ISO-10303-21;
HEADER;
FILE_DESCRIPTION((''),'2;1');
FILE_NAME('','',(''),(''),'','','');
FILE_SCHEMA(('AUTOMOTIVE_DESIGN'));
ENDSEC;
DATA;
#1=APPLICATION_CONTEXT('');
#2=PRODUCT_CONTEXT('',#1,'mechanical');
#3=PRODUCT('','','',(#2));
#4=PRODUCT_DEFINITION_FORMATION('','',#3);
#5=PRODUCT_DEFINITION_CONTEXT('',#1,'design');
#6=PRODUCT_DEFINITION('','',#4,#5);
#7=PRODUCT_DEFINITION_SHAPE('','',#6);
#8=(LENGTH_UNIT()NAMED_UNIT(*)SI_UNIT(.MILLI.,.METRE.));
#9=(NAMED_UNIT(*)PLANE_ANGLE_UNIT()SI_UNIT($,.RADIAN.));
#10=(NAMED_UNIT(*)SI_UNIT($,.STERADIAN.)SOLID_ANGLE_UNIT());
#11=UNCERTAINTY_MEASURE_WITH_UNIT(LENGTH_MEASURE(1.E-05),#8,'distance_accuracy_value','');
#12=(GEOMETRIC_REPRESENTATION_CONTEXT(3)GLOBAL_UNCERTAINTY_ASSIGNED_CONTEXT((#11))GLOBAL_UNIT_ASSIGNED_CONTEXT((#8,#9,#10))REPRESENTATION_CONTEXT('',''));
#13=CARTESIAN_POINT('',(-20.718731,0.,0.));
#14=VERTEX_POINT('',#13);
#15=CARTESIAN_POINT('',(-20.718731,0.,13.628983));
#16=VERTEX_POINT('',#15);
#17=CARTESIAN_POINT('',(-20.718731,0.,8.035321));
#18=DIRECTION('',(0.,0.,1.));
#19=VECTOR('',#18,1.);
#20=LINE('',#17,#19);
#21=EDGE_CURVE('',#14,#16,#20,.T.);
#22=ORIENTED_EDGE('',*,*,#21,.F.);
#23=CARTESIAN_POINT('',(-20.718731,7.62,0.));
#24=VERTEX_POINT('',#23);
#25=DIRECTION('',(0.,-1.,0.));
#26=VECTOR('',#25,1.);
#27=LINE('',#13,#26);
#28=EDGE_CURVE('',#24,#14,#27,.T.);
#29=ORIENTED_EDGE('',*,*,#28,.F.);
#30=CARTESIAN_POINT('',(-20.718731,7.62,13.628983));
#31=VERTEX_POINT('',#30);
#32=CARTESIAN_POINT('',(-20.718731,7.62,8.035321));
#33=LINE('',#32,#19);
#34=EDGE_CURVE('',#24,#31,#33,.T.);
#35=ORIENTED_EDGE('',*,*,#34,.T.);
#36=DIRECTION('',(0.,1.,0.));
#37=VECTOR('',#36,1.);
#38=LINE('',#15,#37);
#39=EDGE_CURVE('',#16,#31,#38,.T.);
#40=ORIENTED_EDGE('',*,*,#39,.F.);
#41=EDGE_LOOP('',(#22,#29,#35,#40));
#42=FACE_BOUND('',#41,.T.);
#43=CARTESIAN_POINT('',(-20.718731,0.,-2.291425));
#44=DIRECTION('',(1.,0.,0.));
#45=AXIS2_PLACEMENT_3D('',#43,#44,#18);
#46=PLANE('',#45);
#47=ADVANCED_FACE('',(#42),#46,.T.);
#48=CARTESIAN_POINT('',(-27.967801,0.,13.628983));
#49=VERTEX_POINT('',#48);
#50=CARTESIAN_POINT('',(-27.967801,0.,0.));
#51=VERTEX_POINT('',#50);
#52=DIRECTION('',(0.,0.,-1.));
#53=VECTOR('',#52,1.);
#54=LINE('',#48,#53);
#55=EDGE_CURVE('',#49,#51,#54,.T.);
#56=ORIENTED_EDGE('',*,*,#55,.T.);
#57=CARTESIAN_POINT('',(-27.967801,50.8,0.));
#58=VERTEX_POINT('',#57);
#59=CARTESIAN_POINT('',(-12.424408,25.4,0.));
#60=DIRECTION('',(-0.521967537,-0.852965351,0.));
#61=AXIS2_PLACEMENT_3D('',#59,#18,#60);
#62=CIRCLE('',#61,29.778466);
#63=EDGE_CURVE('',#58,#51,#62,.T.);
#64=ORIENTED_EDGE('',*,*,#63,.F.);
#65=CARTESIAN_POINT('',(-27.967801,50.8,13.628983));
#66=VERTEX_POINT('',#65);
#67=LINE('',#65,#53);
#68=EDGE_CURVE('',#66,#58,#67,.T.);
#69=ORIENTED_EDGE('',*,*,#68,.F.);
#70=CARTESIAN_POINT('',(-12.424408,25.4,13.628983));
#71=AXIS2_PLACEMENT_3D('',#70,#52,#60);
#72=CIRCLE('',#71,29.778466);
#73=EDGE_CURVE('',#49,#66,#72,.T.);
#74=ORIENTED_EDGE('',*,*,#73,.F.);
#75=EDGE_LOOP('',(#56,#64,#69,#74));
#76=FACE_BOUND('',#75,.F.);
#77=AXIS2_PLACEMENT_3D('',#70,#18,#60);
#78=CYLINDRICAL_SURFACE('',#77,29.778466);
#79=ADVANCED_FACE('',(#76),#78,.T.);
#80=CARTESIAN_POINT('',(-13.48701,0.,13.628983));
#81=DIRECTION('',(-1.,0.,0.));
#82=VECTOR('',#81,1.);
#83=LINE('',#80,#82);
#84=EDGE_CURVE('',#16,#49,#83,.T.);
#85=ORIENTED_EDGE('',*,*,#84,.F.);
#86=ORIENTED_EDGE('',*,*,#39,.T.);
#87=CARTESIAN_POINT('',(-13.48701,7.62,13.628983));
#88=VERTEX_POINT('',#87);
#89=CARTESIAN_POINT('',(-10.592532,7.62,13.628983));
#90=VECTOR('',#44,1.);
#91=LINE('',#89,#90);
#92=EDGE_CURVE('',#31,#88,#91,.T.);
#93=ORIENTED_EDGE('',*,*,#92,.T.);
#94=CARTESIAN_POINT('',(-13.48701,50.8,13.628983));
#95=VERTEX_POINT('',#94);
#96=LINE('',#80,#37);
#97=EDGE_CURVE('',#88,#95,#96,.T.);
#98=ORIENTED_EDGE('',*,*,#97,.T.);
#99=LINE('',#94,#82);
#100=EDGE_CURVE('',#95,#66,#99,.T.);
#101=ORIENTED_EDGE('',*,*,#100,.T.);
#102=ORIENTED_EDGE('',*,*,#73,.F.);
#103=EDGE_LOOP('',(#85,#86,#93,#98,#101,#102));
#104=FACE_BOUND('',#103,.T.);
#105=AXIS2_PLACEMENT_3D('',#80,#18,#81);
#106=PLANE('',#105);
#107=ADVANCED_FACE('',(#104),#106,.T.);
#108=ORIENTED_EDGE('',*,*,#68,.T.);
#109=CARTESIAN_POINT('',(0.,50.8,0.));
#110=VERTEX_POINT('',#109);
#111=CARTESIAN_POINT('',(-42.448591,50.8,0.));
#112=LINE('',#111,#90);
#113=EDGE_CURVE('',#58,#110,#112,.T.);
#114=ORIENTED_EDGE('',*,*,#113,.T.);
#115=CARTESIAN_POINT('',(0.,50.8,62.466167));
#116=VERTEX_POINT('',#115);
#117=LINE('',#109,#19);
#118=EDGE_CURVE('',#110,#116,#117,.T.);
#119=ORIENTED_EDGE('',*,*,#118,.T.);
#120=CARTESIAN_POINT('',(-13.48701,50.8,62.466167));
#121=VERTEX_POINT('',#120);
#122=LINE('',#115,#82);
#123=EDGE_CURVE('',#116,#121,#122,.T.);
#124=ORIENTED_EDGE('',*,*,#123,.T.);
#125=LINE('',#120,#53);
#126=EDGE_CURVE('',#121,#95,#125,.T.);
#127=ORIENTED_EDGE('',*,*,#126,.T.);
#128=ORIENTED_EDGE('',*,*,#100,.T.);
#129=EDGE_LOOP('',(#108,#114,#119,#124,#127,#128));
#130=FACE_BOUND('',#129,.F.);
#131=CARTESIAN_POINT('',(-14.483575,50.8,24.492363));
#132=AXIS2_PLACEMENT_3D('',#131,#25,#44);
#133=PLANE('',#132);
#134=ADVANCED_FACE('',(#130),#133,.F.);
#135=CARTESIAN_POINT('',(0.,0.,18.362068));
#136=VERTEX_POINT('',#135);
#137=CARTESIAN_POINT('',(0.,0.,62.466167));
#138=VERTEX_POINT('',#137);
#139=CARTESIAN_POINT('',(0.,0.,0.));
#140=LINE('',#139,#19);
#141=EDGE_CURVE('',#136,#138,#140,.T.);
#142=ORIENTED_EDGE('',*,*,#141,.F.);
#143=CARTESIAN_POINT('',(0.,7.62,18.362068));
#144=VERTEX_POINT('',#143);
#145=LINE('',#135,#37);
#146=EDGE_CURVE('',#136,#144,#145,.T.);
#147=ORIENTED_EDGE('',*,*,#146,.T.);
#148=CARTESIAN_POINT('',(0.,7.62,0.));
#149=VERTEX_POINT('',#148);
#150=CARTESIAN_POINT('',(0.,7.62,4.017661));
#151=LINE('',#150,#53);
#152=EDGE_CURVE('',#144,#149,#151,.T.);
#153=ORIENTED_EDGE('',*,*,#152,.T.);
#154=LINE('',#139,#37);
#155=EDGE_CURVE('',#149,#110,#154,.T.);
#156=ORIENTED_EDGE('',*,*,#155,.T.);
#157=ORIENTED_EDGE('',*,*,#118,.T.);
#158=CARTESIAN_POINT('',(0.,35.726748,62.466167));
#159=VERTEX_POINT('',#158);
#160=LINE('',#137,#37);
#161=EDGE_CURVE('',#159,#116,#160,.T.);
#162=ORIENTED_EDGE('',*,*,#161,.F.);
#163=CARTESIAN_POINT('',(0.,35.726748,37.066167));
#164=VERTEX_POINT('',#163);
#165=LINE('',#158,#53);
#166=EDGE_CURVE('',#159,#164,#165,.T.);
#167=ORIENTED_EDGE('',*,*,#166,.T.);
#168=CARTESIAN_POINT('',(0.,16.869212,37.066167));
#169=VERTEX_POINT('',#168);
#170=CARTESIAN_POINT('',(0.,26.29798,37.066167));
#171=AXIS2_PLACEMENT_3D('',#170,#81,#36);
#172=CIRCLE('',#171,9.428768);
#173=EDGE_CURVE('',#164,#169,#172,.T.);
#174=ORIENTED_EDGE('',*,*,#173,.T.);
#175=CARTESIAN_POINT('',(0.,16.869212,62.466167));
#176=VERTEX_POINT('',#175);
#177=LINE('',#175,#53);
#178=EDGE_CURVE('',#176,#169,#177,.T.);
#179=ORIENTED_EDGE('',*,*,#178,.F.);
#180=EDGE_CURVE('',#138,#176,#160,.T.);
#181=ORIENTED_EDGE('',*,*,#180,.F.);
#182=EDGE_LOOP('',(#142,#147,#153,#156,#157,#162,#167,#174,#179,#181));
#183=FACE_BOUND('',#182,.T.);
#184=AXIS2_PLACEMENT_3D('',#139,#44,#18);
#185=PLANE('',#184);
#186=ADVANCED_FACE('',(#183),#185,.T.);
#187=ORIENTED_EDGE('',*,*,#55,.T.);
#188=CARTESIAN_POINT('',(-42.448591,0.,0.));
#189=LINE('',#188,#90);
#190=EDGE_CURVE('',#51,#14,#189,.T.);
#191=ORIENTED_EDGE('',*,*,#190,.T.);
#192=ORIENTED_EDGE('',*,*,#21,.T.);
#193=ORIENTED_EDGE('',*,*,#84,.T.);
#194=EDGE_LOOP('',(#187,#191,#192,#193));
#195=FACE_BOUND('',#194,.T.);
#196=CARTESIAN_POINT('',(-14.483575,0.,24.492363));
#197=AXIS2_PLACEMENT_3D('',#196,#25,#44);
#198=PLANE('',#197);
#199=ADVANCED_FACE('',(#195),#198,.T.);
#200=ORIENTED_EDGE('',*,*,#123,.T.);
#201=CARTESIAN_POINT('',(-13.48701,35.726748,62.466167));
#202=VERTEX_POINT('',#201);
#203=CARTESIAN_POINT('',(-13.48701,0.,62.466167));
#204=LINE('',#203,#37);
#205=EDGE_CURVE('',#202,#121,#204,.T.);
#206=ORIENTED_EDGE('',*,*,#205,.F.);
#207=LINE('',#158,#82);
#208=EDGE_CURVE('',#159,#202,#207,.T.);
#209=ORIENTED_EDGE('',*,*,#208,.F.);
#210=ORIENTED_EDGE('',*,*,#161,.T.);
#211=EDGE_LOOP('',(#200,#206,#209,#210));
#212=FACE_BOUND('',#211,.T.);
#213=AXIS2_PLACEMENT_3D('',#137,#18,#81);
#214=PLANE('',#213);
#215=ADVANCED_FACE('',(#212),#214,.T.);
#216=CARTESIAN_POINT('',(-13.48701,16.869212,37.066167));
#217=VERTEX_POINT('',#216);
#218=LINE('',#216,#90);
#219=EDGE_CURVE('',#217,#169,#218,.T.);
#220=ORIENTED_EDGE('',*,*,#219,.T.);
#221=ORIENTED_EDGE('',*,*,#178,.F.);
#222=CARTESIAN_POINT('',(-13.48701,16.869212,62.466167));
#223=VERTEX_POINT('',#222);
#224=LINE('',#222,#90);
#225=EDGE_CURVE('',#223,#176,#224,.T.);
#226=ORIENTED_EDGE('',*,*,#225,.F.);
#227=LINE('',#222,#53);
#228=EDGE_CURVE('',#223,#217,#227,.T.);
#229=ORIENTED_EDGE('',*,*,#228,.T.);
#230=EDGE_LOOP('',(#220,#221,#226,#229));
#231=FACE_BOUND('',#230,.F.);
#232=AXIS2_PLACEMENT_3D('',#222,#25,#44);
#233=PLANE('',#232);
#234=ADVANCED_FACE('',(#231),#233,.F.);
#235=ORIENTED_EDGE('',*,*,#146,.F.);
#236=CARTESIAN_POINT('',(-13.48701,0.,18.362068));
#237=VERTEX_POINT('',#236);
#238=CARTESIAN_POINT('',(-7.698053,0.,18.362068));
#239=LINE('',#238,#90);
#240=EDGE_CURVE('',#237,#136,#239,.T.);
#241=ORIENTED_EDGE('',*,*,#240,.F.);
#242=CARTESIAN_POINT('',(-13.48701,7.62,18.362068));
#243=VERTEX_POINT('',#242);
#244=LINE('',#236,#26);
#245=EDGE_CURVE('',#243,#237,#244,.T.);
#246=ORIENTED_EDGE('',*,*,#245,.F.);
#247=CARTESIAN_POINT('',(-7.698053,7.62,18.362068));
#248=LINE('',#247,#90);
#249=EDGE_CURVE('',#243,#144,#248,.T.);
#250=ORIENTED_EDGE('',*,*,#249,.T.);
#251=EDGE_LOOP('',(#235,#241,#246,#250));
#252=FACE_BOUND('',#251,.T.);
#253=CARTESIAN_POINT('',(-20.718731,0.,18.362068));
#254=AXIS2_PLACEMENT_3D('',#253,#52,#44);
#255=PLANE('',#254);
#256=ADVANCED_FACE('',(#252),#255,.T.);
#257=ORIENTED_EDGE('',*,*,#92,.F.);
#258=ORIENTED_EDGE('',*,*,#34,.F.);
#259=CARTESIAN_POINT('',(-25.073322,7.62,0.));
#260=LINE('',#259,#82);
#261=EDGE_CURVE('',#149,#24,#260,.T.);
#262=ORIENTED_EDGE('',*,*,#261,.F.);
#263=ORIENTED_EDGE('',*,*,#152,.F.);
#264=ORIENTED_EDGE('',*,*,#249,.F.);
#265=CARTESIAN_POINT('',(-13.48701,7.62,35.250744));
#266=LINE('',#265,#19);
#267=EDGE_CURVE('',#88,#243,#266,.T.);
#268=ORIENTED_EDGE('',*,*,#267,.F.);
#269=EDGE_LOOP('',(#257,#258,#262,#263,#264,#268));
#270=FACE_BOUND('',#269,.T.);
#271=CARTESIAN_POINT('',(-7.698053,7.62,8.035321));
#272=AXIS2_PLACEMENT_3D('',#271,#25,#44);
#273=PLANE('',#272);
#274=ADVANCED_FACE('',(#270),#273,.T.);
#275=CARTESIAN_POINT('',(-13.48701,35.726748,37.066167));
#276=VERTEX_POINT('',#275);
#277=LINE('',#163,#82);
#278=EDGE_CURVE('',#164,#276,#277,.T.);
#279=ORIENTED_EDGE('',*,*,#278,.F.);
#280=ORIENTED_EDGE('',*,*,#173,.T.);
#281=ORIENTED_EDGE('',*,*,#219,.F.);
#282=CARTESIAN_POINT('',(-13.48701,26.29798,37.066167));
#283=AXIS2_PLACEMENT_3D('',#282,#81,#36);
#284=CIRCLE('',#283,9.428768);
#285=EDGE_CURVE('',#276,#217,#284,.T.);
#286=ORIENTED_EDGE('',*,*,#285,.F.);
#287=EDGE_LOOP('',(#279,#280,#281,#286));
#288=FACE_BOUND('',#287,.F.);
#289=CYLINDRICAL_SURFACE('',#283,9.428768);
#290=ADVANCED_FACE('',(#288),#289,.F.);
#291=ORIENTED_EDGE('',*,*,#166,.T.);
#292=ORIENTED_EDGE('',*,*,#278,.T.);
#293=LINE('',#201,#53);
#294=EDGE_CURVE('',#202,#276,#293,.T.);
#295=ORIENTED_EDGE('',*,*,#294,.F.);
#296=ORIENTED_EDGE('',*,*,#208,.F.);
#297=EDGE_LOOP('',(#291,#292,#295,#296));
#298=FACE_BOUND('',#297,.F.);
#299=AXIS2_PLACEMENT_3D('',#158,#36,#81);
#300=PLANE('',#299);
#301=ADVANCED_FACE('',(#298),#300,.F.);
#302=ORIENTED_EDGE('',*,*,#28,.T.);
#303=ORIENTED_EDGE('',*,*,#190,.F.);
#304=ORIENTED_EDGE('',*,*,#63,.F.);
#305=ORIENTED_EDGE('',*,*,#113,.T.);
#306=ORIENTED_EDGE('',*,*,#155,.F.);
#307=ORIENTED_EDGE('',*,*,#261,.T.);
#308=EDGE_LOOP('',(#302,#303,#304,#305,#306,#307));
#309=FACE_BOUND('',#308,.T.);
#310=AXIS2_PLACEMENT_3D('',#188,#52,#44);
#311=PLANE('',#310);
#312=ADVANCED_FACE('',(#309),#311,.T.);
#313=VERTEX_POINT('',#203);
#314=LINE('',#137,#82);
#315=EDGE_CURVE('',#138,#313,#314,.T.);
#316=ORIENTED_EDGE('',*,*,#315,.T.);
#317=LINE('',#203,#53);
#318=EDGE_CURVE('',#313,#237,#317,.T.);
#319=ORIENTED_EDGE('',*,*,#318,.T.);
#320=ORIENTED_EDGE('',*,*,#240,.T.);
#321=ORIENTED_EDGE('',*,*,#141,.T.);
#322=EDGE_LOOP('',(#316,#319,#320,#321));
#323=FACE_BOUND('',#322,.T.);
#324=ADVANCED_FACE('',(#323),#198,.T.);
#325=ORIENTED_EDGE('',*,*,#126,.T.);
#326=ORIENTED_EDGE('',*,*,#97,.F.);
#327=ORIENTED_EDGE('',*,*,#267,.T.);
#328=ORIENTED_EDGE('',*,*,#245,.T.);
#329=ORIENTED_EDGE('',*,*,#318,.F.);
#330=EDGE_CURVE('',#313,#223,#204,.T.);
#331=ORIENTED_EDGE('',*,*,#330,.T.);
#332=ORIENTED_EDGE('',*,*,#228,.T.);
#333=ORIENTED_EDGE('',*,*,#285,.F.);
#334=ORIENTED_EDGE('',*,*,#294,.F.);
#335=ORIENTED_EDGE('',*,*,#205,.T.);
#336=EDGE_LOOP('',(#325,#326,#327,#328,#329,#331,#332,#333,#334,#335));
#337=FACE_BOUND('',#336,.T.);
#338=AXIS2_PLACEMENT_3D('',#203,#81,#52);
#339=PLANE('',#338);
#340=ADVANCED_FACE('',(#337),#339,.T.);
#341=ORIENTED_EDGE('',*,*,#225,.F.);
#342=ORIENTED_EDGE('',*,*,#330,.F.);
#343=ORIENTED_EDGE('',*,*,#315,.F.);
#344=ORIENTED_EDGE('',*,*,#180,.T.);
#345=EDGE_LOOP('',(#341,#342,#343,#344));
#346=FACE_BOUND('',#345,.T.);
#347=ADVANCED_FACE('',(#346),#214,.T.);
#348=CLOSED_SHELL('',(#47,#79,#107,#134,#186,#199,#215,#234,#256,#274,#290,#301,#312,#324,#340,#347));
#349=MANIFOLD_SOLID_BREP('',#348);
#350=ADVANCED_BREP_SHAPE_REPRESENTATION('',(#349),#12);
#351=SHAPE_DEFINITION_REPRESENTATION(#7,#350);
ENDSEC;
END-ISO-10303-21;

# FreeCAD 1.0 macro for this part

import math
import FreeCAD as App
import Part
import Sketcher
Q = App.Units.Quantity

doc = App.newDocument("Part")
body = doc.addObject("PartDesign::Body", "Body")

sketch1 = body.newObject("Sketcher::SketchObject", "Sketch")
sketch1.AttachmentSupport = (doc.getObject("XZ_Plane"), [""])
sketch1.MapMode = "FlatFace"
sketch1.addGeometry([
    Part.LineSegment(App.Vector(-42, 0, 0), App.Vector(0, 0, 0)),
    Part.LineSegment(App.Vector(0, 0, 0), App.Vector(0, 62, 0)),
    Part.LineSegment(App.Vector(0, 62, 0), App.Vector(-13, 62, 0)),
    Part.LineSegment(App.Vector(-13, 62, 0), App.Vector(-13, 14, 0)),
    Part.LineSegment(App.Vector(-13, 14, 0), App.Vector(-42, 14, 0)),
    Part.LineSegment(App.Vector(-42, 14, 0), App.Vector(-42, 0, 0)),
], False)
sketch1.addConstraint([
    Sketcher.Constraint("Coincident", 0, 2, 1, 1),
    Sketcher.Constraint("Coincident", 1, 2, 2, 1),
    Sketcher.Constraint("Coincident", 2, 2, 3, 1),
    Sketcher.Constraint("Coincident", 3, 2, 4, 1),
    Sketcher.Constraint("Coincident", 4, 2, 5, 1),
    Sketcher.Constraint("Coincident", 5, 2, 0, 1),
    Sketcher.Constraint("Horizontal", 0),
    Sketcher.Constraint("Vertical", 1),
    Sketcher.Constraint("Horizontal", 2),
    Sketcher.Constraint("Vertical", 3),
    Sketcher.Constraint("Horizontal", 4),
    Sketcher.Constraint("Vertical", 5),
    Sketcher.Constraint("Coincident", 0, 2, -1, 1),
    Sketcher.Constraint("DistanceX", 0, 1, 0, 2, Q("42.448591 mm")),
    Sketcher.Constraint("DistanceX", 2, 2, 2, 1, Q("13.48701 mm")),
    Sketcher.Constraint("DistanceY", 1, 1, 1, 2, Q("62.466167 mm")),
    Sketcher.Constraint("DistanceY", 3, 2, 3, 1, Q("48.837184 mm")),
])
pad1 = body.newObject("PartDesign::Pad", "Pad")
pad1.Profile = sketch1
pad1.Length = Q("2 in")
pad1.Reversed = True

sketch2 = body.newObject("Sketcher::SketchObject", "Sketch001")
sketch2.AttachmentSupport = (doc.getObject("XY_Plane"), [""])
sketch2.MapMode = "FlatFace"
sketch2.AttachmentOffset = App.Placement(App.Vector(0, 0, 13.628983), App.Rotation())
sketch2.addGeometry([
    Part.ArcOfCircle(Part.Circle(App.Vector(-12, 25, 0), App.Vector(0, 0, 1), 30), math.radians(121), math.radians(239)),
    Part.LineSegment(App.Vector(-28, 51, 0), App.Vector(-42, 51, 0)),
    Part.LineSegment(App.Vector(-42, 51, 0), App.Vector(-42, 0, 0)),
    Part.LineSegment(App.Vector(-42, 0, 0), App.Vector(-28, 0, 0)),
], False)
sketch2.addConstraint([
    Sketcher.Constraint("Coincident", 0, 1, 1, 1),
    Sketcher.Constraint("Coincident", 1, 2, 2, 1),
    Sketcher.Constraint("Coincident", 2, 2, 3, 1),
    Sketcher.Constraint("Coincident", 3, 2, 0, 2),
    Sketcher.Constraint("Horizontal", 1),
    Sketcher.Constraint("Vertical", 2),
    Sketcher.Constraint("Horizontal", 3),
    Sketcher.Constraint("PointOnObject", 2, 2, -1),
    Sketcher.Constraint("Vertical", 0, 1, 3, 2),
    Sketcher.Constraint("DistanceY", 2, 2, 2, 1, Q("2 in")),
    Sketcher.Constraint("Radius", 0, Q("29.778466 mm")),
    Sketcher.Constraint("DistanceX", 1, 2, 1, 1, Q("14.480791 mm")),
    Sketcher.Constraint("DistanceX", 0, 1, -1, 1, Q("27.967801 mm")),
])
pocket1 = body.newObject("PartDesign::Pocket", "Pocket")
pocket1.Profile = sketch2
pocket1.Length = Q("1 in")

sketch3 = body.newObject("Sketcher::SketchObject", "Sketch002")
sketch3.AttachmentSupport = (doc.getObject("XZ_Plane"), [""])
sketch3.MapMode = "FlatFace"
sketch3.addGeometry([
    Part.LineSegment(App.Vector(-21, 18, 0), App.Vector(-21, -2, 0)),
    Part.LineSegment(App.Vector(-21, -2, 0), App.Vector(5, -2, 0)),
    Part.LineSegment(App.Vector(5, -2, 0), App.Vector(5, 18, 0)),
    Part.LineSegment(App.Vector(5, 18, 0), App.Vector(-21, 18, 0)),
], False)
sketch3.addConstraint([
    Sketcher.Constraint("Coincident", 0, 2, 1, 1),
    Sketcher.Constraint("Coincident", 1, 2, 2, 1),
    Sketcher.Constraint("Coincident", 2, 2, 3, 1),
    Sketcher.Constraint("Coincident", 3, 2, 0, 1),
    Sketcher.Constraint("Vertical", 0),
    Sketcher.Constraint("Horizontal", 1),
    Sketcher.Constraint("Vertical", 2),
    Sketcher.Constraint("Horizontal", 3),
    Sketcher.Constraint("DistanceX", 1, 1, 1, 2, Q("26.041356 mm")),
    Sketcher.Constraint("DistanceY", 0, 2, 0, 1, Q("20.653492 mm")),
    Sketcher.Constraint("DistanceX", 0, 2, -1, 1, Q("20.718731 mm")),
    Sketcher.Constraint("DistanceY", 0, 2, -1, 1, Q("2.291425 mm")),
])
pocket2 = body.newObject("PartDesign::Pocket", "Pocket001")
pocket2.Profile = sketch3
pocket2.Length = Q("0.3 in")

sketch4 = body.newObject("Sketcher::SketchObject", "Sketch003")
sketch4.AttachmentSupport = (doc.getObject("XY_Plane"), [""])
sketch4.MapMode = "FlatFace"
sketch4.AttachmentOffset = App.Placement(App.Vector(0, 0, 62.466167), App.Rotation())
sketch4.addGeometry([
    Part.LineSegment(App.Vector(0, 17, 0), App.Vector(0, 36, 0)),
    Part.LineSegment(App.Vector(0, 36, 0), App.Vector(-13, 36, 0)),
    Part.LineSegment(App.Vector(-13, 36, 0), App.Vector(-13, 17, 0)),
    Part.LineSegment(App.Vector(-13, 17, 0), App.Vector(0, 17, 0)),
], False)
sketch4.addConstraint([
    Sketcher.Constraint("Coincident", 0, 2, 1, 1),
    Sketcher.Constraint("Coincident", 1, 2, 2, 1),
    Sketcher.Constraint("Coincident", 2, 2, 3, 1),
    Sketcher.Constraint("Coincident", 3, 2, 0, 1),
    Sketcher.Constraint("Vertical", 0),
    Sketcher.Constraint("Horizontal", 1),
    Sketcher.Constraint("Vertical", 2),
    Sketcher.Constraint("Horizontal", 3),
    Sketcher.Constraint("PointOnObject", 0, 2, -2),
    Sketcher.Constraint("DistanceX", 1, 2, 1, 1, Q("13.48701 mm")),
    Sketcher.Constraint("DistanceY", 0, 1, 0, 2, Q("18.857537 mm")),
    Sketcher.Constraint("DistanceY", -1, 1, 0, 2, Q("35.726748 mm")),
])
pocket3 = body.newObject("PartDesign::Pocket", "Pocket002")
pocket3.Profile = sketch4
pocket3.Length = Q("1 in")

sketch5 = body.newObject("Sketcher::SketchObject", "Sketch004")
sketch5.AttachmentSupport = (doc.getObject("YZ_Plane"), [""])
sketch5.MapMode = "FlatFace"
sketch5.AttachmentOffset = App.Placement(App.Vector(0, 0, -13.48701), App.Rotation())
sketch5.addGeometry([
    Part.LineSegment(App.Vector(17, 37, 0), App.Vector(36, 37, 0)),
    Part.ArcOfCircle(Part.Circle(App.Vector(26, 37, 0), App.Vector(0, 0, 1), 9), math.radians(-180), math.radians(0)),
], False)
sketch5.addConstraint([
    Sketcher.Constraint("Coincident", 0, 1, 1, 1),
    Sketcher.Constraint("Coincident", 1, 2, 0, 2),
    Sketcher.Constraint("Horizontal", 0),
    Sketcher.Constraint("Horizontal", 1, 3, 0, 1),
    Sketcher.Constraint("Radius", 1, Q("9.428768 mm")),
    Sketcher.Constraint("DistanceX", -1, 1, 1, 3, Q("26.29798 mm")),
    Sketcher.Constraint("DistanceY", -1, 1, 1, 3, Q("37.066167 mm")),
])
pocket4 = body.newObject("PartDesign::Pocket", "Pocket003")
pocket4.Profile = sketch5
pocket4.Length = Q("1 in")
pocket4.Reversed = True

doc.recompute()
